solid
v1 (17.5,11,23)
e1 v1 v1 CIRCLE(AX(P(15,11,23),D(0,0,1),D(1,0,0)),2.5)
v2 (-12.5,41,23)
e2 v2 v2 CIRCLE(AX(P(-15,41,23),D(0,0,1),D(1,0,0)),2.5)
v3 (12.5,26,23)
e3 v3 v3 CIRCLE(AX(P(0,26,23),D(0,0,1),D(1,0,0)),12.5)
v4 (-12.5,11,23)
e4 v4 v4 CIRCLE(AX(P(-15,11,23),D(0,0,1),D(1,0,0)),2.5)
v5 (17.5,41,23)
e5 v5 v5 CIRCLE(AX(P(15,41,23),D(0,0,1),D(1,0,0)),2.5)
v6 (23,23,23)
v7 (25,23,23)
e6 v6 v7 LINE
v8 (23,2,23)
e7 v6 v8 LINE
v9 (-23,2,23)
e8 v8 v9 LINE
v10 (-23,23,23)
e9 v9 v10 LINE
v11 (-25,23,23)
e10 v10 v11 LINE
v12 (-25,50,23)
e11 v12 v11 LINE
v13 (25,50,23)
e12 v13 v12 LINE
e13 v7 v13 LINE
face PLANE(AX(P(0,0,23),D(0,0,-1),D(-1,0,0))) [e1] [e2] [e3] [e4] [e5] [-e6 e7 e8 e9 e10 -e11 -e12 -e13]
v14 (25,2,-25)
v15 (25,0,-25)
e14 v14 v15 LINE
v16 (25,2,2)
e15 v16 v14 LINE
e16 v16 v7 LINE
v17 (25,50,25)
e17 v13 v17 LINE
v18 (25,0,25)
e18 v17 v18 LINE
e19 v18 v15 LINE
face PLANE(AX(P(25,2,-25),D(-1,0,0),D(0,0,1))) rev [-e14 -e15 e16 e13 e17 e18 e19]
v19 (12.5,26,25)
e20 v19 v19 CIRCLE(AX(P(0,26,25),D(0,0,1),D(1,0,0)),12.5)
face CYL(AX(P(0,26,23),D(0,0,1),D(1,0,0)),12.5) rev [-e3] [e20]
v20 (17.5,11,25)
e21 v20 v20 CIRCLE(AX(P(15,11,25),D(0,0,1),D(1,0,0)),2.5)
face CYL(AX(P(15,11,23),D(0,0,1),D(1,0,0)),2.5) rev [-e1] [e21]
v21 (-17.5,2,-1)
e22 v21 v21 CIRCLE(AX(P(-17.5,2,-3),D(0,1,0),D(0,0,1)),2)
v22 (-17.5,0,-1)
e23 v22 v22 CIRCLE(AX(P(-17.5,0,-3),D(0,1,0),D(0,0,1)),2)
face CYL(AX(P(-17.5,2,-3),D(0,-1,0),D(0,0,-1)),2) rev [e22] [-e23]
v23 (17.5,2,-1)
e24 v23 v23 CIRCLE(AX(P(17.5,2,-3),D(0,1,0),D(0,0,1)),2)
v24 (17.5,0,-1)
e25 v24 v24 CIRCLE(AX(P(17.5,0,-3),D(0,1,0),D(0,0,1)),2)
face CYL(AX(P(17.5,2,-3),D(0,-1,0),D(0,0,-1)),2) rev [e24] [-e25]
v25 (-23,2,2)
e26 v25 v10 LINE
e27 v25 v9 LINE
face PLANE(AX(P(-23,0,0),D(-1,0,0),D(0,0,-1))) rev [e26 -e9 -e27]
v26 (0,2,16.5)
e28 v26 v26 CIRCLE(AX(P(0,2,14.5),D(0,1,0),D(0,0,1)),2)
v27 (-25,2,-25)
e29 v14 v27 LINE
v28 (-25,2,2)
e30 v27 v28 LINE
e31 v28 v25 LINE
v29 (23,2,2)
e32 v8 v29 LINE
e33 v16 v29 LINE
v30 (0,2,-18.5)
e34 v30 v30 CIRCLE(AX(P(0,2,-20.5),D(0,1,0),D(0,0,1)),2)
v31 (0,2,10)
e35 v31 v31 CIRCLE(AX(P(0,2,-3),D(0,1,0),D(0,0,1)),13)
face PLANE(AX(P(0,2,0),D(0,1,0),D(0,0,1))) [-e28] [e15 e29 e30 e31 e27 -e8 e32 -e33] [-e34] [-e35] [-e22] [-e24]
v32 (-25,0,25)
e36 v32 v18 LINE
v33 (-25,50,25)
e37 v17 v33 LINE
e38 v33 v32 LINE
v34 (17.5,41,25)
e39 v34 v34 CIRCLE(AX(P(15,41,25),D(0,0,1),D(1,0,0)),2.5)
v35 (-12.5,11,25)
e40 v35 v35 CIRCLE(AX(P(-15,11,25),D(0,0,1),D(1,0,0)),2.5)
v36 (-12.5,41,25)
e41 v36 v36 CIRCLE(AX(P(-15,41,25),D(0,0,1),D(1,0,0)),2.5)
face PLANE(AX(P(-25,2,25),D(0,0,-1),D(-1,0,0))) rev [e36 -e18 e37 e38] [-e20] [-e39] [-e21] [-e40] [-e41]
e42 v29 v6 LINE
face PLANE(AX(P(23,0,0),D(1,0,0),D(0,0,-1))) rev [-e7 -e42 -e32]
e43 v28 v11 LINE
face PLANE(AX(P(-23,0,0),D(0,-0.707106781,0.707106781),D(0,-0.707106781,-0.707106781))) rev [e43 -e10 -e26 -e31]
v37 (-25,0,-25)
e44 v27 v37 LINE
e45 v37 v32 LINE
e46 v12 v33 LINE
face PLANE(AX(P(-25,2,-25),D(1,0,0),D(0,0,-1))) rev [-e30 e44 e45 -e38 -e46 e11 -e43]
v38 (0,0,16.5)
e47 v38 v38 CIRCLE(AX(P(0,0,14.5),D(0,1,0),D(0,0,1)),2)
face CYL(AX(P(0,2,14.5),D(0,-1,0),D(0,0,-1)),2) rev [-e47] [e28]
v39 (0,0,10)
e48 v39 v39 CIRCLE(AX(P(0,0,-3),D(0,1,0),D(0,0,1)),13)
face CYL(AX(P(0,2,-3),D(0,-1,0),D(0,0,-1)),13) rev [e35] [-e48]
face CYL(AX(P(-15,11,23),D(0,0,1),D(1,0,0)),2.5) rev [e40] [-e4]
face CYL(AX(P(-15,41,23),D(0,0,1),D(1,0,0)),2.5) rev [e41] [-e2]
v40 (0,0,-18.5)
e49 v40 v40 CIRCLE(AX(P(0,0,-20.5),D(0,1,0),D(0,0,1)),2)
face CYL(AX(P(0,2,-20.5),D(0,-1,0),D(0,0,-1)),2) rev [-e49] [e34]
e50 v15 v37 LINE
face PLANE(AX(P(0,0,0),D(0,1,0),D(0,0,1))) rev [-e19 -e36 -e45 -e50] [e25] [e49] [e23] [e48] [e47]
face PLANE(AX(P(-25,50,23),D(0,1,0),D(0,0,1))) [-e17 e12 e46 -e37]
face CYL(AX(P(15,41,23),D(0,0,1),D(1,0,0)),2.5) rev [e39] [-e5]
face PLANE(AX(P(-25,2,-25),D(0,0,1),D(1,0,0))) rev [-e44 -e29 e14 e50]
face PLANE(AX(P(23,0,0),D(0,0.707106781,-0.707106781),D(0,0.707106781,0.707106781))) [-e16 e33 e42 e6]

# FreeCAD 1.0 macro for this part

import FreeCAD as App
import Part
import Sketcher
from FreeCAD import Vector
Q = App.Units.Quantity

doc = App.newDocument("Part")
body = doc.addObject("PartDesign::Body", "Body")

# Sketch on XZ plane
sketch1 = body.newObject("Sketcher::SketchObject", "Sketch")
sketch1.AttachmentSupport = (doc.getObject("XZ_Plane"), [""])
sketch1.MapMode = "FlatFace"
sketch1.addGeometry(Part.LineSegment(Vector(-25, -25, 0), Vector(-25, 25, 0)), False)
sketch1.addGeometry(Part.LineSegment(Vector(-25, 25, 0), Vector(25, 25, 0)), False)
sketch1.addGeometry(Part.LineSegment(Vector(25, 25, 0), Vector(25, -25, 0)), False)
sketch1.addGeometry(Part.LineSegment(Vector(25, -25, 0), Vector(-25, -25, 0)), False)
sketch1.addGeometry(Part.Circle(Vector(0, 14.5, 0), Vector(0, 0, 1), 2), False)
sketch1.addGeometry(Part.Circle(Vector(-17.5, -3, 0), Vector(0, 0, 1), 2), False)
sketch1.addGeometry(Part.Circle(Vector(0, -3, 0), Vector(0, 0, 1), 13), False)
sketch1.addGeometry(Part.Circle(Vector(17.5, -3, 0), Vector(0, 0, 1), 2), False)
sketch1.addGeometry(Part.Circle(Vector(0, -20.5, 0), Vector(0, 0, 1), 2), False)
sketch1.addConstraint(Sketcher.Constraint("Coincident", 0, 2, 1, 1))
sketch1.addConstraint(Sketcher.Constraint("Coincident", 1, 2, 2, 1))
sketch1.addConstraint(Sketcher.Constraint("Coincident", 2, 2, 3, 1))
sketch1.addConstraint(Sketcher.Constraint("Coincident", 3, 2, 0, 1))
sketch1.addConstraint(Sketcher.Constraint("Vertical", 0))
sketch1.addConstraint(Sketcher.Constraint("Horizontal", 1))
sketch1.addConstraint(Sketcher.Constraint("Vertical", 2))
sketch1.addConstraint(Sketcher.Constraint("Horizontal", 3))
sketch1.addConstraint(Sketcher.Constraint("Equal", 4, 5))
sketch1.addConstraint(Sketcher.Constraint("Equal", 5, 7))
sketch1.addConstraint(Sketcher.Constraint("Equal", 7, 8))
sketch1.addConstraint(Sketcher.Constraint("Symmetric", 0, 2, 2, 2, -1, 1))
sketch1.addConstraint(Sketcher.Constraint("Symmetric", 5, 3, 7, 3, -2))
sketch1.addConstraint(Sketcher.Constraint("PointOnObject", 4, 3, -2))
sketch1.addConstraint(Sketcher.Constraint("PointOnObject", 6, 3, -2))
sketch1.addConstraint(Sketcher.Constraint("PointOnObject", 8, 3, -2))
sketch1.addConstraint(Sketcher.Constraint("Horizontal", 5, 3, 6, 3))
sketch1.addConstraint(Sketcher.Constraint("Equal", 3, 0))
sketch1.addConstraint(Sketcher.Constraint("Diameter", 4, Q("4 mm")))
sketch1.addConstraint(Sketcher.Constraint("Diameter", 6, Q("26 mm")))
sketch1.addConstraint(Sketcher.Constraint("DistanceX", 1, 1, 1, 2, Q("50 mm")))
sketch1.addConstraint(Sketcher.Constraint("DistanceY", 5, 3, -1, 1, Q("3 mm")))
sketch1.addConstraint(Sketcher.Constraint("DistanceX", 5, 3, 7, 3, Q("35 mm")))
sketch1.addConstraint(Sketcher.Constraint("DistanceY", 8, 3, 4, 3, Q("35 mm")))
sketch1.addConstraint(Sketcher.Constraint("DistanceY", -1, 1, 4, 3, Q("14.5 mm")))
pad1 = body.newObject("PartDesign::Pad", "Pad")
pad1.Profile = sketch1
pad1.Length = 2
pad1.Reversed = True

# Sketch on XY plane
sketch2 = body.newObject("Sketcher::SketchObject", "Sketch001")
sketch2.AttachmentSupport = (doc.getObject("XY_Plane"), [""])
sketch2.MapMode = "FlatFace"
sketch2.AttachmentOffset = App.Placement(Vector(0, 0, 25), App.Rotation())
sketch2.addGeometry(Part.LineSegment(Vector(-25, 50, 0), Vector(-25, 0, 0)), False)
sketch2.addGeometry(Part.LineSegment(Vector(-25, 0, 0), Vector(25, 0, 0)), False)
sketch2.addGeometry(Part.LineSegment(Vector(25, 0, 0), Vector(25, 50, 0)), False)
sketch2.addGeometry(Part.LineSegment(Vector(25, 50, 0), Vector(-25, 50, 0)), False)
sketch2.addGeometry(Part.Circle(Vector(-15, 11, 0), Vector(0, 0, 1), 2.5), False)
sketch2.addGeometry(Part.Circle(Vector(15, 11, 0), Vector(0, 0, 1), 2.5), False)
sketch2.addGeometry(Part.Circle(Vector(-15, 41, 0), Vector(0, 0, 1), 2.5), False)
sketch2.addGeometry(Part.Circle(Vector(0, 26, 0), Vector(0, 0, 1), 12.5), False)
sketch2.addGeometry(Part.Circle(Vector(15, 41, 0), Vector(0, 0, 1), 2.5), False)
sketch2.addConstraint(Sketcher.Constraint("Coincident", 0, 2, 1, 1))
sketch2.addConstraint(Sketcher.Constraint("Coincident", 1, 2, 2, 1))
sketch2.addConstraint(Sketcher.Constraint("Coincident", 2, 2, 3, 1))
sketch2.addConstraint(Sketcher.Constraint("Coincident", 3, 2, 0, 1))
sketch2.addConstraint(Sketcher.Constraint("Vertical", 0))
sketch2.addConstraint(Sketcher.Constraint("Horizontal", 1))
sketch2.addConstraint(Sketcher.Constraint("Vertical", 2))
sketch2.addConstraint(Sketcher.Constraint("Horizontal", 3))
sketch2.addConstraint(Sketcher.Constraint("Equal", 4, 5))
sketch2.addConstraint(Sketcher.Constraint("Equal", 5, 6))
sketch2.addConstraint(Sketcher.Constraint("Equal", 6, 8))
sketch2.addConstraint(Sketcher.Constraint("Symmetric", 0, 2, 1, 2, -1, 1))
sketch2.addConstraint(Sketcher.Constraint("Symmetric", 4, 3, 5, 3, -2))
sketch2.addConstraint(Sketcher.Constraint("Symmetric", 6, 3, 8, 3, -2))
sketch2.addConstraint(Sketcher.Constraint("PointOnObject", 7, 3, -2))
sketch2.addConstraint(Sketcher.Constraint("Vertical", 4, 3, 6, 3))
sketch2.addConstraint(Sketcher.Constraint("Equal", 3, 0))
sketch2.addConstraint(Sketcher.Constraint("Diameter", 4, Q("5 mm")))
sketch2.addConstraint(Sketcher.Constraint("Diameter", 7, Q("25 mm")))
sketch2.addConstraint(Sketcher.Constraint("DistanceX", 1, 1, 1, 2, Q("50 mm")))
sketch2.addConstraint(Sketcher.Constraint("DistanceX", 4, 3, -1, 1, Q("15 mm")))
sketch2.addConstraint(Sketcher.Constraint("DistanceY", -1, 1, 4, 3, Q("11 mm")))
sketch2.addConstraint(Sketcher.Constraint("DistanceY", -1, 1, 6, 3, Q("41 mm")))
sketch2.addConstraint(Sketcher.Constraint("DistanceY", -1, 1, 7, 3, Q("26 mm")))
pad2 = body.newObject("PartDesign::Pad", "Pad001")
pad2.Profile = sketch2
pad2.Length = 2
pad2.Reversed = True

# Sketch on YZ plane
sketch3 = body.newObject("Sketcher::SketchObject", "Sketch002")
sketch3.AttachmentSupport = (doc.getObject("YZ_Plane"), [""])
sketch3.MapMode = "FlatFace"
sketch3.AttachmentOffset = App.Placement(Vector(0, 0, 25), App.Rotation())
sketch3.addGeometry(Part.LineSegment(Vector(0, 25, 0), Vector(0, 0, 0)), False)
sketch3.addGeometry(Part.LineSegment(Vector(0, 0, 0), Vector(25, 25, 0)), False)
sketch3.addGeometry(Part.LineSegment(Vector(25, 25, 0), Vector(0, 25, 0)), False)
sketch3.addConstraint(Sketcher.Constraint("Coincident", 0, 2, 1, 1))
sketch3.addConstraint(Sketcher.Constraint("Coincident", 1, 2, 2, 1))
sketch3.addConstraint(Sketcher.Constraint("Coincident", 2, 2, 0, 1))
sketch3.addConstraint(Sketcher.Constraint("Vertical", 0))
sketch3.addConstraint(Sketcher.Constraint("Horizontal", 2))
sketch3.addConstraint(Sketcher.Constraint("Coincident", 0, 2, -1, 1))
sketch3.addConstraint(Sketcher.Constraint("Equal", 2, 0))
sketch3.addConstraint(Sketcher.Constraint("DistanceX", 2, 2, 2, 1, Q("25 mm")))
pad3 = body.newObject("PartDesign::Pad", "Pad002")
pad3.Profile = sketch3
pad3.Length = 2
pad3.Reversed = True
doc.recompute()

mirrored = body.newObject("PartDesign::Mirrored", "Mirrored")
mirrored.Originals = [pad3]
mirrored.MirrorPlane = (doc.getObject("YZ_Plane"), [""])
body.Tip = mirrored

doc.recompute()
